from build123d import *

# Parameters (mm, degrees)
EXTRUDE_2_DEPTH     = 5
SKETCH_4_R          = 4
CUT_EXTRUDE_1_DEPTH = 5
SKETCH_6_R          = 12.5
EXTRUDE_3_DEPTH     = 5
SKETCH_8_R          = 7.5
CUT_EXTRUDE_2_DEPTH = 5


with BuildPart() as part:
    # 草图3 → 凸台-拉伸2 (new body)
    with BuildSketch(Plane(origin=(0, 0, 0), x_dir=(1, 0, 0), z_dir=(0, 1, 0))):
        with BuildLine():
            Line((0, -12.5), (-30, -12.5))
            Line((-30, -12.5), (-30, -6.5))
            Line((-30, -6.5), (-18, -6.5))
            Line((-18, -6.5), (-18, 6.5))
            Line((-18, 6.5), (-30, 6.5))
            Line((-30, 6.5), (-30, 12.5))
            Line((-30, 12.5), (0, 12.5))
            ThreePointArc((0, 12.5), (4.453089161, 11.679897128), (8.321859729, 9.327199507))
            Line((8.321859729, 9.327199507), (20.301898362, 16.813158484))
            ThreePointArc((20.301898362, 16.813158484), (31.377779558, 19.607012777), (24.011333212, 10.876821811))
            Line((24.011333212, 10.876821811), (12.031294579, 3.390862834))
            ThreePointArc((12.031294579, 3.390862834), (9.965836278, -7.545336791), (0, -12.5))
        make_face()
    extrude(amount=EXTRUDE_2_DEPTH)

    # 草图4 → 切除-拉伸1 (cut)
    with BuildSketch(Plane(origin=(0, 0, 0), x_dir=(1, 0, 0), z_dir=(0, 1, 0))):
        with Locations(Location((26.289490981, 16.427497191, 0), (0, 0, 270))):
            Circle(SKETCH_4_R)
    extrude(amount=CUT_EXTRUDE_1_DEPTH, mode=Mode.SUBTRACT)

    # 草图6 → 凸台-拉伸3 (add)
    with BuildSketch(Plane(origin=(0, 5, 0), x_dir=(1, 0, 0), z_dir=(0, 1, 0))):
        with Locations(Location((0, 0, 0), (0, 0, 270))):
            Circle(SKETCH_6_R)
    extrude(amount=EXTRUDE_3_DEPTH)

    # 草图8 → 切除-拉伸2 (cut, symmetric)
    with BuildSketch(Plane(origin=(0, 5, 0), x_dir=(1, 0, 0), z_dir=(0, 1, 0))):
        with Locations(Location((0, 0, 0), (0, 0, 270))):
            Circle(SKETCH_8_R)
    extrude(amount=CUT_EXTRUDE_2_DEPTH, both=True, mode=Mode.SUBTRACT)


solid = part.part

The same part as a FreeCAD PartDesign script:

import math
import FreeCAD as App
import Part
import Sketcher

V = App.Vector
Q = App.Units.Quantity

doc = App.newDocument("Part")
body = doc.addObject("PartDesign::Body", "Body")

sketch1 = body.newObject("Sketcher::SketchObject", "Sketch")
sketch1.AttachmentSupport = (doc.getObject("XZ_Plane"), [""])
sketch1.MapMode = "FlatFace"
sketch1.addGeometry([
    Part.LineSegment(V(-30, 12, 0), V(0, 12, 0)),
    Part.ArcOfCircle(Part.Circle(V(0, 0, 0), V(0, 0, 1), 12), math.radians(-16), math.radians(90)),
    Part.LineSegment(V(12, -3, 0), V(24, -11, 0)),
    Part.ArcOfCircle(Part.Circle(V(26, -16, 0), V(0, 0, 1), 6), math.radians(-176), math.radians(112)),
    Part.LineSegment(V(20, -17, 0), V(8, -9, 0)),
    Part.ArcOfCircle(Part.Circle(V(0, 0, 0), V(0, 0, 1), 12), math.radians(-90), math.radians(-48)),
    Part.LineSegment(V(0, -12, 0), V(-30, -12, 0)),
    Part.LineSegment(V(-30, -12, 0), V(-30, -6, 0)),
    Part.LineSegment(V(-30, -6, 0), V(-18, -6, 0)),
    Part.LineSegment(V(-18, -6, 0), V(-18, 6, 0)),
    Part.LineSegment(V(-18, 6, 0), V(-30, 6, 0)),
    Part.LineSegment(V(-30, 6, 0), V(-30, 12, 0)),
], False)
sketch1.addConstraint([
    Sketcher.Constraint("Tangent", 0, 2, 1, 2),
    Sketcher.Constraint("Coincident", 1, 1, 2, 1),
    Sketcher.Constraint("Coincident", 2, 2, 3, 2),
    Sketcher.Constraint("Coincident", 3, 1, 4, 1),
    Sketcher.Constraint("Coincident", 4, 2, 5, 2),
    Sketcher.Constraint("Tangent", 5, 1, 6, 1),
    Sketcher.Constraint("Coincident", 6, 2, 7, 1),
    Sketcher.Constraint("Coincident", 7, 2, 8, 1),
    Sketcher.Constraint("Coincident", 8, 2, 9, 1),
    Sketcher.Constraint("Coincident", 9, 2, 10, 1),
    Sketcher.Constraint("Coincident", 10, 2, 11, 1),
    Sketcher.Constraint("Coincident", 11, 2, 0, 1),
    Sketcher.Constraint("Horizontal", 0),
    Sketcher.Constraint("Horizontal", 6),
    Sketcher.Constraint("Vertical", 7),
    Sketcher.Constraint("Horizontal", 8),
    Sketcher.Constraint("Vertical", 9),
    Sketcher.Constraint("Horizontal", 10),
    Sketcher.Constraint("Vertical", 11),
    Sketcher.Constraint("Coincident", 1, 3, -1, 1),
    Sketcher.Constraint("Coincident", 5, 3, -1, 1),
    Sketcher.Constraint("Equal", 1, 5),
    Sketcher.Constraint("Symmetric", 7, 2, 10, 2, -1),
    Sketcher.Constraint("Parallel", 2, 4),
    Sketcher.Constraint("Equal", 2, 4),
    Sketcher.Constraint("Radius", 3, Q("6 mm")),
    Sketcher.Constraint("Radius", 1, Q("12.5 mm")),
    Sketcher.Constraint("DistanceX", 0, 1, 0, 2, Q("30 mm")),
    Sketcher.Constraint("DistanceX", 8, 1, 8, 2, Q("12 mm")),
    Sketcher.Constraint("DistanceY", 7, 1, 7, 2, Q("6 mm")),
    Sketcher.Constraint("Angle", 2, Q("-32 deg")),
    Sketcher.Constraint("DistanceX", -1, 1, 3, 1, Q("20.301898 mm")),
    Sketcher.Constraint("DistanceY", 4, 2, -1, 1, Q("9.3272 mm")),
    Sketcher.Constraint("DistanceX", -1, 1, 3, 3, Q("26.289491 mm")),
])
pad1 = body.newObject("PartDesign::Pad", "Pad")
pad1.Profile = sketch1
pad1.Length = 5
pad1.Reversed = True

sketch2 = body.newObject("Sketcher::SketchObject", "Sketch001")
sketch2.AttachmentSupport = (doc.getObject("XZ_Plane"), [""])
sketch2.MapMode = "FlatFace"
sketch2.addGeometry(Part.Circle(V(26.3, -16.4, 0), V(0, 0, 1), 4), False)
sketch2.addConstraint([
    Sketcher.Constraint("Diameter", 0, Q("8 mm")),
    Sketcher.Constraint("DistanceX", -1, 1, 0, 3, Q("26.289491 mm")),
    Sketcher.Constraint("DistanceY", 0, 3, -1, 1, Q("16.427497 mm")),
])
pocket1 = body.newObject("PartDesign::Pocket", "Pocket")
pocket1.Profile = sketch2
pocket1.Length = 5

sketch3 = body.newObject("Sketcher::SketchObject", "Sketch002")
sketch3.AttachmentSupport = (doc.getObject("XZ_Plane"), [""])
sketch3.MapMode = "FlatFace"
sketch3.AttachmentOffset = App.Placement(V(0, 0, -5), App.Rotation())
sketch3.addGeometry(Part.Circle(V(0, 0, 0), V(0, 0, 1), 12), False)
sketch3.addConstraint([
    Sketcher.Constraint("Coincident", 0, 3, -1, 1),
    Sketcher.Constraint("Diameter", 0, Q("25 mm")),
])
pad2 = body.newObject("PartDesign::Pad", "Pad001")
pad2.Profile = sketch3
pad2.Length = 5
pad2.Reversed = True

sketch4 = body.newObject("Sketcher::SketchObject", "Sketch003")
sketch4.AttachmentSupport = (doc.getObject("XZ_Plane"), [""])
sketch4.MapMode = "FlatFace"
sketch4.AttachmentOffset = App.Placement(V(0, 0, -5), App.Rotation())
sketch4.addGeometry(Part.Circle(V(0, 0, 0), V(0, 0, 1), 8), False)
sketch4.addConstraint([
    Sketcher.Constraint("Coincident", 0, 3, -1, 1),
    Sketcher.Constraint("Diameter", 0, Q("15 mm")),
])
pocket2 = body.newObject("PartDesign::Pocket", "Pocket001")
pocket2.Profile = sketch4
pocket2.Length = 10
pocket2.Midplane = True

doc.recompute()
